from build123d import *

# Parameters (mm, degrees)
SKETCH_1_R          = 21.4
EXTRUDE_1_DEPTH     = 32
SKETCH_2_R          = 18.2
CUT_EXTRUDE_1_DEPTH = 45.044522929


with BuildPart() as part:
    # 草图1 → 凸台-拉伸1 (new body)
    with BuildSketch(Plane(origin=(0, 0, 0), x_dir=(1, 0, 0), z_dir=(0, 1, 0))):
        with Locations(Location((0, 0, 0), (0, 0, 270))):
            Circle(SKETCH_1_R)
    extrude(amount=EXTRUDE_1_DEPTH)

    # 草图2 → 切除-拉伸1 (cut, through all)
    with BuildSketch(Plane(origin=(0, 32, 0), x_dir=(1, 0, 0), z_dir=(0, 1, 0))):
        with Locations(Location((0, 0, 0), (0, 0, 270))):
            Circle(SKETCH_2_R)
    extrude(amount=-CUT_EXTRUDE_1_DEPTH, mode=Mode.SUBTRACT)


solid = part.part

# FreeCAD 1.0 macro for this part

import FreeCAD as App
import Part
import Sketcher

V = App.Vector
Q = App.Units.Quantity

doc = App.newDocument("Part")
body = doc.addObject("PartDesign::Body", "Body")

# Sketch on XZ plane
sketch1 = doc.addObject("Sketcher::SketchObject", "Sketch")
body.addObject(sketch1)
sketch1.AttachmentSupport = (doc.XZ_Plane, [""])
sketch1.MapMode = "FlatFace"
sketch1.addGeometry(Part.Circle(V(0, 0, 0), V(0, 0, 1), 21), False)
sketch1.addConstraint([
    Sketcher.Constraint("Coincident", 0, 3, -1, 1),
    Sketcher.Constraint("Diameter", 0, Q("42.8 mm")),
])
pad1 = doc.addObject("PartDesign::Pad", "Pad")
body.addObject(pad1)
pad1.Profile = sketch1
pad1.Length = 32
pad1.Reversed = True

# Sketch on XZ plane
sketch2 = doc.addObject("Sketcher::SketchObject", "Sketch001")
body.addObject(sketch2)
sketch2.AttachmentSupport = (doc.XZ_Plane, [""])
sketch2.MapMode = "FlatFace"
sketch2.AttachmentOffset = App.Placement(V(0, 0, -32), App.Rotation())
sketch2.addGeometry(Part.Circle(V(0, 0, 0), V(0, 0, 1), 18), False)
sketch2.addConstraint([
    Sketcher.Constraint("Coincident", 0, 3, -1, 1),
    Sketcher.Constraint("Diameter", 0, Q("36.4 mm")),
])
pocket1 = doc.addObject("PartDesign::Pocket", "Pocket")
body.addObject(pocket1)
pocket1.Profile = sketch2
pocket1.Type = "ThroughAll"
pocket1.Reversed = True

doc.recompute()
